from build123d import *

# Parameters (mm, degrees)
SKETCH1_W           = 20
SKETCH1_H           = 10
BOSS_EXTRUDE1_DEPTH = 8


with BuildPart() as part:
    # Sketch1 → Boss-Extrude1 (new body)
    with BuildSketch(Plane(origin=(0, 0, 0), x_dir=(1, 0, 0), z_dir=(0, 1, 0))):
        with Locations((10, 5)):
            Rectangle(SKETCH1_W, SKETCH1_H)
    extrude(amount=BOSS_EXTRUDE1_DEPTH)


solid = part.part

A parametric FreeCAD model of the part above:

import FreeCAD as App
import Part
import Sketcher

V = App.Vector


def add_polygon(sketch, points):
    """Adds a closed chain of lines whose ends are joined by coincident constraints."""
    first, n = sketch.GeometryCount, len(points)
    for a, b in zip(points, points[1:] + points[:1]):
        sketch.addGeometry(Part.LineSegment(App.Vector(*a, 0), App.Vector(*b, 0)), False)
    for i in range(n):
        sketch.addConstraint(Sketcher.Constraint("Coincident", first + i, 2, first + (i + 1) % n, 1))

doc = App.newDocument("Part")
params = doc.addObject("Spreadsheet::Sheet", "Params")
for row, (alias, value) in enumerate([
    ("sketch1_width", "20 mm"),
    ("sketch1_height", "10 mm"),
    ("pad1_length", "8 mm"),
], start=1):
    params.set(f"A{row}", alias)
    params.set(f"B{row}", "=" + value)
    params.setAlias(f"B{row}", alias)

body = doc.addObject("PartDesign::Body", "Body")

# Sketch on XZ plane
sketch1 = doc.addObject("Sketcher::SketchObject", "Sketch")
body.addObject(sketch1)
sketch1.AttachmentSupport = (doc.XZ_Plane, [""])
sketch1.MapMode = "FlatFace"
add_polygon(sketch1, [(0, -10), (0, 0), (20, 0), (20, -10)])  # lines 0-3
sketch1.addConstraint([
    Sketcher.Constraint("Vertical", 0),
    Sketcher.Constraint("Horizontal", 1),
    Sketcher.Constraint("Vertical", 2),
    Sketcher.Constraint("Horizontal", 3),
    Sketcher.Constraint("Coincident", 0, 2, -1, 1),
    Sketcher.Constraint("DistanceX", 1, 1, 1, 2, 20.0),
    Sketcher.Constraint("DistanceY", 0, 1, 0, 2, 10.0),
])
sketch1.setExpression("Constraints[9]", "Params.sketch1_width")
sketch1.setExpression("Constraints[10]", "Params.sketch1_height")
pad1 = doc.addObject("PartDesign::Pad", "Pad")
body.addObject(pad1)
pad1.Profile = sketch1
pad1.setExpression("Length", "Params.pad1_length")
pad1.Reversed = True

doc.recompute()
